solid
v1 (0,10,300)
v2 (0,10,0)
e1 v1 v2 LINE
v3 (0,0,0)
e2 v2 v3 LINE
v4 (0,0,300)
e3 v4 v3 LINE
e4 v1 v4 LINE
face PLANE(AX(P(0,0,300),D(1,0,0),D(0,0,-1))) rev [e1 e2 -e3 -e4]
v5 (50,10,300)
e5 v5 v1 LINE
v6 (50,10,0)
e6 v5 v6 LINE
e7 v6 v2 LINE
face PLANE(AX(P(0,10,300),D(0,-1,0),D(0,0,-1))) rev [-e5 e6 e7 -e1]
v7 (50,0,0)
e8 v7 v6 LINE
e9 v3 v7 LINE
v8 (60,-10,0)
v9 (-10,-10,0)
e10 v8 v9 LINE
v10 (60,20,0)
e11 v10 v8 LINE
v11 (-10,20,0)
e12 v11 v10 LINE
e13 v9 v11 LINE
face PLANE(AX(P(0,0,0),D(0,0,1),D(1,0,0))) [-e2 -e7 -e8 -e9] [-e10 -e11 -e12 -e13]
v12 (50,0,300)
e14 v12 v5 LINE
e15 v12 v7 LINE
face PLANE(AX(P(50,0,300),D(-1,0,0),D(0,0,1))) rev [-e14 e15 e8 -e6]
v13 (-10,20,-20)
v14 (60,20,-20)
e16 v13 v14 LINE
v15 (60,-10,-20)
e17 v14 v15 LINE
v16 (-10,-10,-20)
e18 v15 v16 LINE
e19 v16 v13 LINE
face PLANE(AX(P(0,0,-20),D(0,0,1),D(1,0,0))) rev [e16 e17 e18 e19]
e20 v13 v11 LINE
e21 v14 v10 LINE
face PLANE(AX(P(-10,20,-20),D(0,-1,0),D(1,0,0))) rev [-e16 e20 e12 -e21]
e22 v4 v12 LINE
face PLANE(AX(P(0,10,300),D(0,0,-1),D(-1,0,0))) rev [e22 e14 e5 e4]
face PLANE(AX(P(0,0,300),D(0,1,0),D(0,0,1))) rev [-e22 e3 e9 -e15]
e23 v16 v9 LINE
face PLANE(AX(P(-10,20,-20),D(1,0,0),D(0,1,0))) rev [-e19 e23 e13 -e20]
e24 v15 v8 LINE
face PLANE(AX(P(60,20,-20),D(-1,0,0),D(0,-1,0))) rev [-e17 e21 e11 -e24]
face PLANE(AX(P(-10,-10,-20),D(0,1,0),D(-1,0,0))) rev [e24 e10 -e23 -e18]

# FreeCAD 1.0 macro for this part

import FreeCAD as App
import Part
import Sketcher
from FreeCAD import Vector


def add_polygon(sketch, points):
    """Adds a closed chain of lines whose ends are joined by coincident constraints."""
    first, n = sketch.GeometryCount, len(points)
    for a, b in zip(points, points[1:] + points[:1]):
        sketch.addGeometry(Part.LineSegment(App.Vector(*a, 0), App.Vector(*b, 0)), False)
    for i in range(n):
        sketch.addConstraint(Sketcher.Constraint("Coincident", first + i, 2, first + (i + 1) % n, 1))

doc = App.newDocument("Part")
params = doc.addObject("Spreadsheet::Sheet", "Params")
for row, (alias, value) in enumerate([
    ("sketch1_width", "50 mm"),
    ("sketch1_height", "10 mm"),
    ("pad1_length", "300 mm"),
    ("sketch2_width", "70 mm"),
    ("sketch2_height", "30 mm"),
    ("pad2_length", "20 mm"),
], start=1):
    params.set(f"A{row}", alias)
    params.set(f"B{row}", "=" + value)
    params.setAlias(f"B{row}", alias)

body = doc.addObject("PartDesign::Body", "Body")

sketch1 = body.newObject("Sketcher::SketchObject", "Sketch")
sketch1.AttachmentSupport = (doc.getObject("XY_Plane"), [""])
sketch1.MapMode = "FlatFace"
add_polygon(sketch1, [(0, 10), (0, 0), (50, 0), (50, 10)])
sketch1.addConstraint([
    Sketcher.Constraint("Vertical", 0),
    Sketcher.Constraint("Horizontal", 1),
    Sketcher.Constraint("Vertical", 2),
    Sketcher.Constraint("Horizontal", 3),
    Sketcher.Constraint("Coincident", 0, 2, -1, 1),
    Sketcher.Constraint("DistanceX", 1, 1, 1, 2, 50.0),
    Sketcher.Constraint("DistanceY", 0, 2, 0, 1, 10.0),
])
sketch1.setExpression("Constraints[9]", "Params.sketch1_width")
sketch1.setExpression("Constraints[10]", "Params.sketch1_height")
pad1 = body.newObject("PartDesign::Pad", "Pad")
pad1.Profile = sketch1
pad1.setExpression("Length", "Params.pad1_length")

sketch2 = body.newObject("Sketcher::SketchObject", "Sketch001")
sketch2.AttachmentSupport = (doc.getObject("XY_Plane"), [""])
sketch2.MapMode = "FlatFace"
add_polygon(sketch2, [(60, 20), (60, -10), (-10, -10), (-10, 20)])
sketch2.addConstraint([
    Sketcher.Constraint("Vertical", 0),
    Sketcher.Constraint("Horizontal", 1),
    Sketcher.Constraint("Vertical", 2),
    Sketcher.Constraint("Horizontal", 3),
    Sketcher.Constraint("DistanceX", 1, 2, 1, 1, 70.0),
    Sketcher.Constraint("DistanceY", 0, 2, 0, 1, 30.0),
    Sketcher.Constraint("DistanceX", -1, 1, 0, 2, 60.0),
    Sketcher.Constraint("DistanceY", 0, 2, -1, 1, 10.0),
])
sketch2.setExpression("Constraints[8]", "Params.sketch2_width")
sketch2.setExpression("Constraints[9]", "Params.sketch2_height")
pad2 = body.newObject("PartDesign::Pad", "Pad001")
pad2.Profile = sketch2
pad2.setExpression("Length", "Params.pad2_length")
pad2.Reversed = True

doc.recompute()
